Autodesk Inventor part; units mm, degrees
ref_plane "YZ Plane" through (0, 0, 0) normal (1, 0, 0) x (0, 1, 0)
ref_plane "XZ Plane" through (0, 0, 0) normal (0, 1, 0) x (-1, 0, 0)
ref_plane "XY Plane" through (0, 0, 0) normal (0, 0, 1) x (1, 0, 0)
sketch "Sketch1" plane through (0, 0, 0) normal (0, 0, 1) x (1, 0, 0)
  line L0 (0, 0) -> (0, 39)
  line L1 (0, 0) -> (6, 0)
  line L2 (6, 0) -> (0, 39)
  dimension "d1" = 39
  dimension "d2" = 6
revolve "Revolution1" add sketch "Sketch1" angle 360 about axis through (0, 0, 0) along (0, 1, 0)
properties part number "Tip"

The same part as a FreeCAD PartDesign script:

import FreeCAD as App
import Part
import Sketcher
Q = App.Units.Quantity


def add_polygon(sketch, points):
    """Adds a closed chain of lines whose ends are joined by coincident constraints."""
    first, n = sketch.GeometryCount, len(points)
    for a, b in zip(points, points[1:] + points[:1]):
        sketch.addGeometry(Part.LineSegment(App.Vector(*a, 0), App.Vector(*b, 0)), False)
    for i in range(n):
        sketch.addConstraint(Sketcher.Constraint("Coincident", first + i, 2, first + (i + 1) % n, 1))

doc = App.newDocument("Part")
body = doc.addObject("PartDesign::Body", "Body")

# Sketch on XY plane
sketch1 = body.newObject("Sketcher::SketchObject", "Sketch")
sketch1.AttachmentSupport = (doc.getObject("XY_Plane"), [""])
sketch1.MapMode = "FlatFace"
add_polygon(sketch1, [(0, 39), (0, 0), (6, 0)])  # lines 0-2
sketch1.addConstraint(Sketcher.Constraint("Vertical", 0))
sketch1.addConstraint(Sketcher.Constraint("Horizontal", 1))
sketch1.addConstraint(Sketcher.Constraint("Coincident", 0, 2, -1, 1))
sketch1.addConstraint(Sketcher.Constraint("DistanceX", 1, 1, 1, 2, Q("6 mm")))
sketch1.addConstraint(Sketcher.Constraint("DistanceY", 0, 2, 0, 1, Q("39 mm")))
revolution = body.newObject("PartDesign::Revolution", "Revolution")
revolution.Profile = sketch1
revolution.ReferenceAxis = (sketch1, ["V_Axis"])
revolution.Angle = 360

doc.recompute()
